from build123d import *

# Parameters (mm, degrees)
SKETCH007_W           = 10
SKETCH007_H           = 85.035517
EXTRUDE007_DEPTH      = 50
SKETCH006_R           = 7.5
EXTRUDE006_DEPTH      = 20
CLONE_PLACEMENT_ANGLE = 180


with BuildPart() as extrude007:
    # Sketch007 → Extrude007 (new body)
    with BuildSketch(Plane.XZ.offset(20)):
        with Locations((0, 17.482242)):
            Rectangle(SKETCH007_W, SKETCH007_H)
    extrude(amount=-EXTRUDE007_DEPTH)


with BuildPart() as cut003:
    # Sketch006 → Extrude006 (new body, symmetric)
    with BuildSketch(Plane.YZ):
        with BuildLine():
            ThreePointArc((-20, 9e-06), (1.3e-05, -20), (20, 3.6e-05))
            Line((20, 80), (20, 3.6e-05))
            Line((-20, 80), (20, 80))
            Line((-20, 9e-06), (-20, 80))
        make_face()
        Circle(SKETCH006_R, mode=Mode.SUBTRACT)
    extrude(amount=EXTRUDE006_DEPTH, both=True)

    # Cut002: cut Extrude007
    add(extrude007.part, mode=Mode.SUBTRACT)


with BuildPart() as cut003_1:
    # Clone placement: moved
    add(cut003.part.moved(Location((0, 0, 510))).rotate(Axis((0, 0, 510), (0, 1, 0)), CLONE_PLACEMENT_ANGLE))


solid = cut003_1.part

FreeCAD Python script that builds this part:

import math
import FreeCAD as App
import Part
import Sketcher
from FreeCAD import Vector

doc = App.newDocument("Part")
body = doc.addObject("PartDesign::Body", "Body")

# Sketch on XZ plane
sketch1 = body.newObject("Sketcher::SketchObject", "Sketch")
sketch1.AttachmentSupport = (doc.getObject("XZ_Plane"), [""])
sketch1.MapMode = "FlatFace"
sketch1.AttachmentOffset = App.Placement(Vector(0, 0, 20), App.Rotation())
sketch1.addGeometry([
    Part.LineSegment(Vector(-5, 60, 0), Vector(-5, -25, 0)),
    Part.LineSegment(Vector(-5, -25, 0), Vector(5, -25, 0)),
    Part.LineSegment(Vector(5, -25, 0), Vector(5, 60, 0)),
    Part.LineSegment(Vector(5, 60, 0), Vector(-5, 60, 0)),
], False)
sketch1.addConstraint([
    Sketcher.Constraint("Coincident", 0, 2, 1, 1),
    Sketcher.Constraint("Coincident", 1, 2, 2, 1),
    Sketcher.Constraint("Coincident", 2, 2, 3, 1),
    Sketcher.Constraint("Coincident", 3, 2, 0, 1),
    Sketcher.Constraint("Vertical", 0),
    Sketcher.Constraint("Horizontal", 1),
    Sketcher.Constraint("Vertical", 2),
    Sketcher.Constraint("Horizontal", 3),
    Sketcher.Constraint("DistanceX", 1, 1, 1, 2, 10.0),
    Sketcher.Constraint("DistanceX", 0, 2, -1, 1, 5.0),
    Sketcher.Constraint("DistanceY", -1, 1, 2, 2, 60.0),
    Sketcher.Constraint("DistanceY", 0, 2, 0, 1, 85.035517),
])
pad1 = body.newObject("PartDesign::Pad", "Pad")
pad1.Profile = sketch1
pad1.Length = 50
pad1.Reversed = True
body2 = doc.addObject("PartDesign::Body", "Body001")

# Sketch on YZ plane
sketch2 = body2.newObject("Sketcher::SketchObject", "Sketch001")
sketch2.AttachmentSupport = (doc.getObject("YZ_Plane001"), [""])
sketch2.MapMode = "FlatFace"
sketch2.addGeometry([
    Part.ArcOfCircle(Part.Circle(Vector(0, 0, 0), Vector(0, 0, 1), 20), math.radians(179.999974), math.radians(360.000103)),  # 0
    Part.LineSegment(Vector(20, 0.000036, 0), Vector(20, 80, 0)),  # 1
    Part.LineSegment(Vector(20, 80, 0), Vector(-20, 80, 0)),  # 2
    Part.LineSegment(Vector(-20, 80, 0), Vector(-20, 0.000009, 0)),  # 3
    Part.Circle(Vector(0, 0, 0), Vector(0, 0, 1), 7.5),  # 4
], False)
sketch2.addConstraint([
    Sketcher.Constraint("Coincident", 0, 2, 1, 1),
    Sketcher.Constraint("Coincident", 1, 2, 2, 1),
    Sketcher.Constraint("Coincident", 2, 2, 3, 1),
    Sketcher.Constraint("Coincident", 3, 2, 0, 1),
    Sketcher.Constraint("Vertical", 1),
    Sketcher.Constraint("Horizontal", 2),
    Sketcher.Constraint("Vertical", 3),
    Sketcher.Constraint("Coincident", 0, 3, -1, 1),
    Sketcher.Constraint("Coincident", 4, 3, -1, 1),
    Sketcher.Constraint("Diameter", 4, 15.0),
    Sketcher.Constraint("Radius", 0, 20.0),
    Sketcher.Constraint("DistanceY", -1, 1, 1, 2, 80.0),
    Sketcher.Constraint("DistanceY", 3, 2, 3, 1, 79.999991),
    Sketcher.Constraint("DistanceY", 1, 1, 1, 2, 79.999964),
])
pad2 = body2.newObject("PartDesign::Pad", "Pad001")
pad2.Profile = sketch2
pad2.Length = 40
pad2.Midplane = True
doc.recompute()

boolean = body2.newObject("PartDesign::Boolean", "Boolean")
boolean.Type = "Cut"
boolean.addObjects([body])
body3 = doc.addObject("PartDesign::Body", "Body002")
doc.recompute()

body2.Placement = App.Placement(Vector(0, 0, 510), App.Rotation(Vector(0, 1, 0), 180))
boolean2 = body3.newObject("PartDesign::Boolean", "Boolean001")
boolean2.Type = "Fuse"
boolean2.addObjects([body2])

doc.recompute()
